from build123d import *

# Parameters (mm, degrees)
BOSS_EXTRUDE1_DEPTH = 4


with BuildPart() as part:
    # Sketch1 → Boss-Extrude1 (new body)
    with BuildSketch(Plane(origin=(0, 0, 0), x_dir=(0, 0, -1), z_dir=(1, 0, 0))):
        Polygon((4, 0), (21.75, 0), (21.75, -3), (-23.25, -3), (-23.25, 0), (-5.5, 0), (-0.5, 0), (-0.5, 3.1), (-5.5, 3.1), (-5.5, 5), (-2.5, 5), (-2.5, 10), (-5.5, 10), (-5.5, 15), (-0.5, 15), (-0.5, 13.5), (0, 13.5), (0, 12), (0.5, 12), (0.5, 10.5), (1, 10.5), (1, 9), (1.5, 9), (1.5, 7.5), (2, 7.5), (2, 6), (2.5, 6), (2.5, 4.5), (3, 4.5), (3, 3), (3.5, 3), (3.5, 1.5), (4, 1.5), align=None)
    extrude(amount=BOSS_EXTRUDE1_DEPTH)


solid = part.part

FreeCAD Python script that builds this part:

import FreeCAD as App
import Part
import Sketcher
Q = App.Units.Quantity


def add_polygon(sketch, points):
    """Adds a closed chain of lines whose ends are joined by coincident constraints."""
    first, n = sketch.GeometryCount, len(points)
    for a, b in zip(points, points[1:] + points[:1]):
        sketch.addGeometry(Part.LineSegment(App.Vector(*a, 0), App.Vector(*b, 0)), False)
    for i in range(n):
        sketch.addConstraint(Sketcher.Constraint("Coincident", first + i, 2, first + (i + 1) % n, 1))

doc = App.newDocument("Part")
body = doc.addObject("PartDesign::Body", "Body")

# Sketch on YZ plane
sketch1 = body.newObject("Sketcher::SketchObject", "Sketch")
sketch1.AttachmentSupport = (doc.getObject("YZ_Plane"), [""])
sketch1.MapMode = "FlatFace"
add_polygon(sketch1, [(0, -21.8), (0, -4), (1.5, -4), (1.5, -3.5), (3, -3.5), (3, -3), (4.5, -3), (4.5, -2.5), (6, -2.5), (6, -2), (7.5, -2), (7.5, -1.5), (9, -1.5), (9, -1), (10.5, -1), (10.5, -0.5), (12, -0.5), (12, 0), (13.5, 0), (13.5, 0.5), (15, 0.5), (15, 5.5), (10, 5.5), (10, 2.5), (5, 2.5), (5, 5.5), (3.1, 5.5), (3.1, 0.5), (0, 0.5), (0, 23.2), (-3, 23.2), (-3, -21.8)])  # lines 0-31
sketch1.addConstraint([
    Sketcher.Constraint("Vertical", 0),
    Sketcher.Constraint("Horizontal", 1),
    Sketcher.Constraint("Vertical", 2),
    Sketcher.Constraint("Horizontal", 3),
    Sketcher.Constraint("Vertical", 4),
    Sketcher.Constraint("Horizontal", 5),
    Sketcher.Constraint("Vertical", 6),
    Sketcher.Constraint("Horizontal", 7),
    Sketcher.Constraint("Vertical", 8),
    Sketcher.Constraint("Horizontal", 9),
    Sketcher.Constraint("Vertical", 10),
    Sketcher.Constraint("Horizontal", 11),
    Sketcher.Constraint("Vertical", 12),
    Sketcher.Constraint("Horizontal", 13),
    Sketcher.Constraint("Vertical", 14),
    Sketcher.Constraint("Horizontal", 15),
    Sketcher.Constraint("Vertical", 16),
    Sketcher.Constraint("Horizontal", 17),
    Sketcher.Constraint("Vertical", 18),
    Sketcher.Constraint("Horizontal", 19),
    Sketcher.Constraint("Vertical", 20),
    Sketcher.Constraint("Horizontal", 21),
    Sketcher.Constraint("Vertical", 22),
    Sketcher.Constraint("Horizontal", 23),
    Sketcher.Constraint("Vertical", 24),
    Sketcher.Constraint("Horizontal", 25),
    Sketcher.Constraint("Vertical", 26),
    Sketcher.Constraint("Horizontal", 27),
    Sketcher.Constraint("Vertical", 28),
    Sketcher.Constraint("Horizontal", 29),
    Sketcher.Constraint("Vertical", 30),
    Sketcher.Constraint("Horizontal", 31),
    Sketcher.Constraint("PointOnObject", 0, 2, -2),
    Sketcher.Constraint("PointOnObject", 16, 2, -1),
    Sketcher.Constraint("PointOnObject", 27, 2, -2),
    Sketcher.Constraint("Horizontal", 21, 2, 24, 2),
    Sketcher.Constraint("Horizontal", 19, 2, 26, 2),
    Sketcher.Constraint("Equal", 1, 3),
    Sketcher.Constraint("Equal", 3, 5),
    Sketcher.Constraint("Equal", 5, 7),
    Sketcher.Constraint("Equal", 7, 9),
    Sketcher.Constraint("Equal", 9, 11),
    Sketcher.Constraint("Equal", 11, 13),
    Sketcher.Constraint("Equal", 13, 15),
    Sketcher.Constraint("Equal", 15, 17),
    Sketcher.Constraint("Equal", 17, 19),
    Sketcher.Constraint("Equal", 21, 23),
    Sketcher.Constraint("Equal", 2, 4),
    Sketcher.Constraint("Equal", 4, 6),
    Sketcher.Constraint("Equal", 6, 8),
    Sketcher.Constraint("Equal", 8, 10),
    Sketcher.Constraint("Equal", 10, 12),
    Sketcher.Constraint("Equal", 12, 14),
    Sketcher.Constraint("Equal", 14, 16),
    Sketcher.Constraint("Equal", 16, 18),
    Sketcher.Constraint("Equal", 23, 20),
    Sketcher.Constraint("Equal", 31, 22),
    Sketcher.Constraint("DistanceX", 21, 2, 21, 1, Q("5 mm")),
    Sketcher.Constraint("DistanceX", 29, 2, 29, 1, Q("3 mm")),
    Sketcher.Constraint("DistanceY", 30, 2, 30, 1, Q("45 mm")),
    Sketcher.Constraint("DistanceX", 1, 1, 1, 2, Q("1.5 mm")),
    Sketcher.Constraint("DistanceX", 25, 2, 25, 1, Q("1.9 mm")),
    Sketcher.Constraint("DistanceY", 2, 1, 2, 2, Q("0.5 mm")),
    Sketcher.Constraint("DistanceY", 0, 1, 0, 2, Q("17.75 mm")),
])
pad1 = body.newObject("PartDesign::Pad", "Pad")
pad1.Profile = sketch1
pad1.Length = 4

doc.recompute()
